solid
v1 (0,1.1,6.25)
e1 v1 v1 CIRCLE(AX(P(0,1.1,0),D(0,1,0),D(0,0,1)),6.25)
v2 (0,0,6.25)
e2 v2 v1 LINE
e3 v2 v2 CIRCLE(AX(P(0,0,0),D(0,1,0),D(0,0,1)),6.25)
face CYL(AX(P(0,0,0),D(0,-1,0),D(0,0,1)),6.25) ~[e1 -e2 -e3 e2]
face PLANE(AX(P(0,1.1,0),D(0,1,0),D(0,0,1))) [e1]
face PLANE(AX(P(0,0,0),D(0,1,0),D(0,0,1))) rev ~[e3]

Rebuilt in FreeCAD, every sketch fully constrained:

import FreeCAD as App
import Part
import Sketcher

V = App.Vector

doc = App.newDocument("Part")
body = doc.addObject("PartDesign::Body", "Body")

# Sketch on XZ plane
sketch1 = body.newObject("Sketcher::SketchObject", "Sketch")
sketch1.AttachmentSupport = (doc.getObject("XZ_Plane"), [""])
sketch1.MapMode = "FlatFace"
sketch1.addGeometry(Part.Circle(V(0, 0, 0), V(0, 0, 1), 6.25), False)
sketch1.addConstraint(Sketcher.Constraint("Coincident", 0, 3, -1, 1))
sketch1.addConstraint(Sketcher.Constraint("Diameter", 0, 12.5))
pad1 = body.newObject("PartDesign::Pad", "Pad")
pad1.Profile = sketch1
pad1.Length = 1.1
pad1.Reversed = True

doc.recompute()
